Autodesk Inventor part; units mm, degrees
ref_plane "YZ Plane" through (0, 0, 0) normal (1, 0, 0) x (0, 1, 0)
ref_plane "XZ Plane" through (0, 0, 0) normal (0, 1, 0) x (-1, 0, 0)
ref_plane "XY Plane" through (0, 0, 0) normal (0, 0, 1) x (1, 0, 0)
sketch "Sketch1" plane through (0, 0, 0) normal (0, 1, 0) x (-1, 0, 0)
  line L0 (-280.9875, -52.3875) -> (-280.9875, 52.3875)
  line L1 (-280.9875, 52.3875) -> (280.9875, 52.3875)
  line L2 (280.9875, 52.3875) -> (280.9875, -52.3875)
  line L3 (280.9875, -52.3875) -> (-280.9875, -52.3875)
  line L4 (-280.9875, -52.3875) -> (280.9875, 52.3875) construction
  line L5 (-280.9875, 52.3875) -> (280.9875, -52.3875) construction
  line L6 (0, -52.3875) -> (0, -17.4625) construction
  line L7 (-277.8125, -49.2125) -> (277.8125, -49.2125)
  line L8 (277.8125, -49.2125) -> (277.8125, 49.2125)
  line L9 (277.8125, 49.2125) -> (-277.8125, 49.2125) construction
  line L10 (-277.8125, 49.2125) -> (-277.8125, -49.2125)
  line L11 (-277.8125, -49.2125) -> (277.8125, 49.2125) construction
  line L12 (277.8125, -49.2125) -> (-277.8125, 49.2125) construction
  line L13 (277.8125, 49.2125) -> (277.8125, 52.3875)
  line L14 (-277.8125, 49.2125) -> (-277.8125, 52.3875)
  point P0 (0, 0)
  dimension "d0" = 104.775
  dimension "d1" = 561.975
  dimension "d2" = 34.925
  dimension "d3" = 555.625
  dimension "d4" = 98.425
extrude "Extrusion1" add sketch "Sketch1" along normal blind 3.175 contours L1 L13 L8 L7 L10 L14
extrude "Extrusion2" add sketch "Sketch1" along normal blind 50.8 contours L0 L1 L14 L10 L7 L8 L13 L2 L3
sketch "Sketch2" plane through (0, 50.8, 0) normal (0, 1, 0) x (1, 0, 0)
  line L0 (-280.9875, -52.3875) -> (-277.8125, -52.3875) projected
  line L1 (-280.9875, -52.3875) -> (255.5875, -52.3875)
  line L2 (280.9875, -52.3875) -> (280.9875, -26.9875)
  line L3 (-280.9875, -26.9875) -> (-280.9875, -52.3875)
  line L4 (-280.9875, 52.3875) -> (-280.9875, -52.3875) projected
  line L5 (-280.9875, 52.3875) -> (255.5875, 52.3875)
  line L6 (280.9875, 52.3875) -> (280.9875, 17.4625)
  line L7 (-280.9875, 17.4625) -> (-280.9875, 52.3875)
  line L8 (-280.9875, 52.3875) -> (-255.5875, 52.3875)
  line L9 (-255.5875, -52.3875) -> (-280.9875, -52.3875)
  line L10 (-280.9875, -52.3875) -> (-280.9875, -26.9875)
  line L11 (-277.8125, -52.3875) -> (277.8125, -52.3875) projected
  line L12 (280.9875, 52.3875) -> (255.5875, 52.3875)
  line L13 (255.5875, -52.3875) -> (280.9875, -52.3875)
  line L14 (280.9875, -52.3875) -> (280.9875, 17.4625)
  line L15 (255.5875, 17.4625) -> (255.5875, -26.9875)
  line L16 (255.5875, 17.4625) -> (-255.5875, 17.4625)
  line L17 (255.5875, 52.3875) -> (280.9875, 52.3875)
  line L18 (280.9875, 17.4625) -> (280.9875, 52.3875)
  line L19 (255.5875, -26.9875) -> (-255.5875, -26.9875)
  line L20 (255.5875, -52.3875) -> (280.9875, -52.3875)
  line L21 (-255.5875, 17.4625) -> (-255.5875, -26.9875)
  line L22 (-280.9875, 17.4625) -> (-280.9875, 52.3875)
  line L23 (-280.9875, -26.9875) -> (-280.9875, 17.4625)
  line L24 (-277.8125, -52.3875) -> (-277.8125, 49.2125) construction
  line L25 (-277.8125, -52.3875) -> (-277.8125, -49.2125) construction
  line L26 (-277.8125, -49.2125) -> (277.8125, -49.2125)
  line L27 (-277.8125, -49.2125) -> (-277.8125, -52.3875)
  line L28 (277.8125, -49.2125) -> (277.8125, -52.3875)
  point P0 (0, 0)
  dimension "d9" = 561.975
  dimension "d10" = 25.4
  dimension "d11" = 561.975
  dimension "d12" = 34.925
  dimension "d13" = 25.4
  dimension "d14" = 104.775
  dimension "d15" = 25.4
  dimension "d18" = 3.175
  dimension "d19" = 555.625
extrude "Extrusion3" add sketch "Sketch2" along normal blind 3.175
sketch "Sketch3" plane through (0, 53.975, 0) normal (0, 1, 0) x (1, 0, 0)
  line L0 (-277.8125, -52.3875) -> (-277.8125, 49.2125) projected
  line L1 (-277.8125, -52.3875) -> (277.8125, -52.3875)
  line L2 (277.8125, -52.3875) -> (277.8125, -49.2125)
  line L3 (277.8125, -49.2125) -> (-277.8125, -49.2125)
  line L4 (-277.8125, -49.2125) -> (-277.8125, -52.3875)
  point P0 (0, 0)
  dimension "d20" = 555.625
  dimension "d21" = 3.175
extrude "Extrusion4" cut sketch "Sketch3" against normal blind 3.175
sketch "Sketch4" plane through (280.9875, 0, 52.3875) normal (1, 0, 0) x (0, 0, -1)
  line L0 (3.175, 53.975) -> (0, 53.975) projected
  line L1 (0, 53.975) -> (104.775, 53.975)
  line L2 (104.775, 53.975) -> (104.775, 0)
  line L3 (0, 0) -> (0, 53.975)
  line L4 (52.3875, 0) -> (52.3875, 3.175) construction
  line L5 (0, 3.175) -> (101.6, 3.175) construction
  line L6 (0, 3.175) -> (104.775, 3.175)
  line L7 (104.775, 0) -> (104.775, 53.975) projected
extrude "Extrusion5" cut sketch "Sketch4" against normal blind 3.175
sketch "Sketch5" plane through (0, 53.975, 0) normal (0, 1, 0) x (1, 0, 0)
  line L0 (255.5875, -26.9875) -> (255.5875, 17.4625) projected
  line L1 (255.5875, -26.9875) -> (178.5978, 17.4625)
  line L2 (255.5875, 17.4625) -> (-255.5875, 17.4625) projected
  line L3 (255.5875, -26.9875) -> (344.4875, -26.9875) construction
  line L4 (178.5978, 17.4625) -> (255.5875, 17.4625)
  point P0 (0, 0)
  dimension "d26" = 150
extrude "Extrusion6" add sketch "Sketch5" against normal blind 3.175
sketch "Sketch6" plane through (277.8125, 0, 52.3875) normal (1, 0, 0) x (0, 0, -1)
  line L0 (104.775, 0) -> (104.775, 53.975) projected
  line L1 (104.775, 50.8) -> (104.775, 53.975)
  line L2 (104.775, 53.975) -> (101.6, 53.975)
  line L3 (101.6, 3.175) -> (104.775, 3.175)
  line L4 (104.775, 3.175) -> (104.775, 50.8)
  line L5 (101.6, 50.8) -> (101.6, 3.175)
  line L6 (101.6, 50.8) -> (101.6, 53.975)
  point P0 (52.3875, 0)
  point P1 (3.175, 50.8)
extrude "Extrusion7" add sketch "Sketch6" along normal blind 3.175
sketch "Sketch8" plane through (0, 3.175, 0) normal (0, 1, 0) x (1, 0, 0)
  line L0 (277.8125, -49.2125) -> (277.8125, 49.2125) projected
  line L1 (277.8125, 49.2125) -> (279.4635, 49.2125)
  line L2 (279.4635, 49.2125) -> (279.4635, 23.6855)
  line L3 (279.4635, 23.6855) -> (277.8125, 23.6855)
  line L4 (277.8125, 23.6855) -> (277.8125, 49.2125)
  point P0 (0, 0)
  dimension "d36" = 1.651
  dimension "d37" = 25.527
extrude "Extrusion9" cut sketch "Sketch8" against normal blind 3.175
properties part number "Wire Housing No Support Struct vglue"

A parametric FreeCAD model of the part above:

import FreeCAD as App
import Part
import Sketcher
from FreeCAD import Vector
Q = App.Units.Quantity

doc = App.newDocument("Part")
body = doc.addObject("PartDesign::Body", "Body")

# Sketch on XZ plane
sketch1 = body.newObject("Sketcher::SketchObject", "Sketch")
sketch1.AttachmentSupport = (doc.getObject("XZ_Plane"), [""])
sketch1.MapMode = "FlatFace"
sketch1.addGeometry([
    Part.LineSegment(Vector(-278, 52, 0), Vector(278, 52, 0)),
    Part.LineSegment(Vector(278, 52, 0), Vector(278, -49, 0)),
    Part.LineSegment(Vector(278, -49, 0), Vector(-278, -49, 0)),
    Part.LineSegment(Vector(-278, -49, 0), Vector(-278, 52, 0)),
], False)
sketch1.addConstraint([
    Sketcher.Constraint("Coincident", 0, 2, 1, 1),
    Sketcher.Constraint("Coincident", 1, 2, 2, 1),
    Sketcher.Constraint("Coincident", 2, 2, 3, 1),
    Sketcher.Constraint("Coincident", 3, 2, 0, 1),
    Sketcher.Constraint("Horizontal", 0),
    Sketcher.Constraint("Vertical", 1),
    Sketcher.Constraint("Horizontal", 2),
    Sketcher.Constraint("Vertical", 3),
    Sketcher.Constraint("DistanceX", 0, 1, 0, 2, Q("21.875 in")),
    Sketcher.Constraint("DistanceY", 1, 2, 1, 1, Q("4 in")),
    Sketcher.Constraint("DistanceX", -1, 1, 0, 2, Q("10.9375 in")),
    Sketcher.Constraint("DistanceY", -1, 1, 0, 2, Q("2.0625 in")),
])
pad1 = body.newObject("PartDesign::Pad", "Pad")
pad1.Profile = sketch1
pad1.Length = Q("0.125 in")
pad1.Reversed = True

# Sketch on XZ plane
sketch2 = body.newObject("Sketcher::SketchObject", "Sketch001")
sketch2.AttachmentSupport = (doc.getObject("XZ_Plane"), [""])
sketch2.MapMode = "FlatFace"
sketch2.addGeometry([
    Part.LineSegment(Vector(281, 52.4, 0), Vector(281, -52.4, 0)),  # 0
    Part.LineSegment(Vector(281, -52.4, 0), Vector(-281, -52.4, 0)),  # 1
    Part.LineSegment(Vector(-281, -52.4, 0), Vector(-281, 52.4, 0)),  # 2
    Part.LineSegment(Vector(-281, 52.4, 0), Vector(-277.8, 52.4, 0)),  # 3
    Part.LineSegment(Vector(-277.8, 52.4, 0), Vector(-277.8, -49.2, 0)),  # 4
    Part.LineSegment(Vector(-277.8, -49.2, 0), Vector(277.8, -49.2, 0)),  # 5
    Part.LineSegment(Vector(277.8, -49.2, 0), Vector(277.8, 52.4, 0)),  # 6
    Part.LineSegment(Vector(277.8, 52.4, 0), Vector(281, 52.4, 0)),  # 7
], False)
sketch2.addConstraint([
    Sketcher.Constraint("Coincident", 0, 2, 1, 1),
    Sketcher.Constraint("Coincident", 1, 2, 2, 1),
    Sketcher.Constraint("Coincident", 2, 2, 3, 1),
    Sketcher.Constraint("Coincident", 3, 2, 4, 1),
    Sketcher.Constraint("Coincident", 4, 2, 5, 1),
    Sketcher.Constraint("Coincident", 5, 2, 6, 1),
    Sketcher.Constraint("Coincident", 6, 2, 7, 1),
    Sketcher.Constraint("Coincident", 7, 2, 0, 1),
    Sketcher.Constraint("Vertical", 0),
    Sketcher.Constraint("Horizontal", 1),
    Sketcher.Constraint("Vertical", 2),
    Sketcher.Constraint("Horizontal", 3),
    Sketcher.Constraint("Vertical", 4),
    Sketcher.Constraint("Horizontal", 5),
    Sketcher.Constraint("Vertical", 6),
    Sketcher.Constraint("Horizontal", 7),
    Sketcher.Constraint("Symmetric", 0, 2, 2, 2, -1, 1),
    Sketcher.Constraint("Symmetric", 3, 2, 6, 2, -2),
    Sketcher.Constraint("DistanceX", 1, 2, 1, 1, Q("22.125 in")),
    Sketcher.Constraint("DistanceX", 5, 1, 5, 2, Q("21.875 in")),
    Sketcher.Constraint("DistanceY", 0, 2, 0, 1, Q("4.125 in")),
    Sketcher.Constraint("DistanceY", 4, 2, 4, 1, Q("4 in")),
])
pad2 = body.newObject("PartDesign::Pad", "Pad001")
pad2.Profile = sketch2
pad2.Length = Q("2 in")
pad2.Reversed = True

# Sketch on XZ plane
sketch3 = body.newObject("Sketcher::SketchObject", "Sketch002")
sketch3.AttachmentSupport = (doc.getObject("XZ_Plane"), [""])
sketch3.MapMode = "FlatFace"
sketch3.AttachmentOffset = App.Placement(Vector(0, 0, -2 * 25.4), App.Rotation())
sketch3.addGeometry([
    Part.LineSegment(Vector(-281, 52, 0), Vector(281, 52, 0)),  # 0
    Part.LineSegment(Vector(281, 52, 0), Vector(281, -52, 0)),  # 1
    Part.LineSegment(Vector(281, -52, 0), Vector(-281, -52, 0)),  # 2
    Part.LineSegment(Vector(-281, -52, 0), Vector(-281, 52, 0)),  # 3
    Part.LineSegment(Vector(-256, -17, 0), Vector(256, -17, 0)),  # 4
    Part.LineSegment(Vector(256, -17, 0), Vector(256, 27, 0)),  # 5
    Part.LineSegment(Vector(256, 27, 0), Vector(-256, 27, 0)),  # 6
    Part.LineSegment(Vector(-256, 27, 0), Vector(-256, -17, 0)),  # 7
], False)
sketch3.addConstraint([
    Sketcher.Constraint("Coincident", 0, 2, 1, 1),
    Sketcher.Constraint("Coincident", 1, 2, 2, 1),
    Sketcher.Constraint("Coincident", 2, 2, 3, 1),
    Sketcher.Constraint("Coincident", 3, 2, 0, 1),
    Sketcher.Constraint("Coincident", 4, 2, 5, 1),
    Sketcher.Constraint("Coincident", 5, 2, 6, 1),
    Sketcher.Constraint("Coincident", 6, 2, 7, 1),
    Sketcher.Constraint("Coincident", 7, 2, 4, 1),
    Sketcher.Constraint("Horizontal", 0),
    Sketcher.Constraint("Vertical", 1),
    Sketcher.Constraint("Horizontal", 2),
    Sketcher.Constraint("Vertical", 3),
    Sketcher.Constraint("Horizontal", 4),
    Sketcher.Constraint("Vertical", 5),
    Sketcher.Constraint("Horizontal", 6),
    Sketcher.Constraint("Vertical", 7),
    Sketcher.Constraint("Symmetric", 0, 2, 2, 2, -1, 1),
    Sketcher.Constraint("DistanceX", 4, 2, 1, 2, Q("1 in")),
    Sketcher.Constraint("DistanceY", 5, 2, 0, 2, Q("1 in")),
    Sketcher.Constraint("DistanceX", 3, 2, 6, 2, Q("1 in")),
    Sketcher.Constraint("DistanceX", 0, 1, 0, 2, Q("22.125 in")),
    Sketcher.Constraint("DistanceY", 1, 2, 1, 1, Q("4.125 in")),
    Sketcher.Constraint("DistanceY", 1, 2, 4, 2, Q("1.375 in")),
])
pad3 = body.newObject("PartDesign::Pad", "Pad002")
pad3.Profile = sketch3
pad3.Length = Q("0.125 in")
pad3.Reversed = True

# Sketch on XZ plane
sketch4 = body.newObject("Sketcher::SketchObject", "Sketch003")
sketch4.AttachmentSupport = (doc.getObject("XZ_Plane"), [""])
sketch4.MapMode = "FlatFace"
sketch4.AttachmentOffset = App.Placement(Vector(0, 0, -2.125 * 25.4), App.Rotation())
sketch4.addGeometry([
    Part.LineSegment(Vector(-277.8, 49.2, 0), Vector(-277.8, 52.4, 0)),
    Part.LineSegment(Vector(-277.8, 52.4, 0), Vector(277.8, 52.4, 0)),
    Part.LineSegment(Vector(277.8, 52.4, 0), Vector(277.8, 49.2, 0)),
    Part.LineSegment(Vector(277.8, 49.2, 0), Vector(-277.8, 49.2, 0)),
], False)
sketch4.addConstraint([
    Sketcher.Constraint("Coincident", 0, 2, 1, 1),
    Sketcher.Constraint("Coincident", 1, 2, 2, 1),
    Sketcher.Constraint("Coincident", 2, 2, 3, 1),
    Sketcher.Constraint("Coincident", 3, 2, 0, 1),
    Sketcher.Constraint("Vertical", 0),
    Sketcher.Constraint("Horizontal", 1),
    Sketcher.Constraint("Vertical", 2),
    Sketcher.Constraint("Horizontal", 3),
    Sketcher.Constraint("DistanceX", 1, 1, 1, 2, Q("21.875 in")),
    Sketcher.Constraint("DistanceY", 0, 1, 0, 2, Q("0.125 in")),
    Sketcher.Constraint("DistanceX", 0, 2, -1, 1, Q("10.9375 in")),
    Sketcher.Constraint("DistanceY", -1, 1, 0, 2, Q("2.0625 in")),
])
pocket1 = body.newObject("PartDesign::Pocket", "Pocket")
pocket1.Profile = sketch4
pocket1.Length = Q("0.125 in")
pocket1.Reversed = True

# Sketch on YZ plane
sketch5 = body.newObject("Sketcher::SketchObject", "Sketch004")
sketch5.AttachmentSupport = (doc.getObject("YZ_Plane"), [""])
sketch5.MapMode = "FlatFace"
sketch5.AttachmentOffset = App.Placement(Vector(0, 0, 11.0625 * 25.4), App.Rotation())
sketch5.addGeometry([
    Part.LineSegment(Vector(54, -52, 0), Vector(54, 52, 0)),
    Part.LineSegment(Vector(54, 52, 0), Vector(3, 52, 0)),
    Part.LineSegment(Vector(3, 52, 0), Vector(3, -52, 0)),
    Part.LineSegment(Vector(3, -52, 0), Vector(54, -52, 0)),
], False)
sketch5.addConstraint([
    Sketcher.Constraint("Coincident", 0, 2, 1, 1),
    Sketcher.Constraint("Coincident", 1, 2, 2, 1),
    Sketcher.Constraint("Coincident", 2, 2, 3, 1),
    Sketcher.Constraint("Coincident", 3, 2, 0, 1),
    Sketcher.Constraint("Vertical", 0),
    Sketcher.Constraint("Horizontal", 1),
    Sketcher.Constraint("Vertical", 2),
    Sketcher.Constraint("Horizontal", 3),
    Sketcher.Constraint("DistanceX", 1, 2, 1, 1, Q("2 in")),
    Sketcher.Constraint("DistanceY", 0, 1, 0, 2, Q("4.125 in")),
    Sketcher.Constraint("DistanceX", -1, 1, 0, 2, Q("2.125 in")),
    Sketcher.Constraint("DistanceY", -1, 1, 0, 2, Q("2.0625 in")),
])
pocket2 = body.newObject("PartDesign::Pocket", "Pocket001")
pocket2.Profile = sketch5
pocket2.Length = Q("0.125 in")

# Sketch on XZ plane
sketch6 = body.newObject("Sketcher::SketchObject", "Sketch005")
sketch6.AttachmentSupport = (doc.getObject("XZ_Plane"), [""])
sketch6.MapMode = "FlatFace"
sketch6.AttachmentOffset = App.Placement(Vector(0, 0, -2.125 * 25.4), App.Rotation())
sketch6.addGeometry([
    Part.LineSegment(Vector(179, -17, 0), Vector(256, 27, 0)),
    Part.LineSegment(Vector(256, 27, 0), Vector(256, -17, 0)),
    Part.LineSegment(Vector(256, -17, 0), Vector(179, -17, 0)),
], False)
sketch6.addConstraint([
    Sketcher.Constraint("Coincident", 0, 2, 1, 1),
    Sketcher.Constraint("Coincident", 1, 2, 2, 1),
    Sketcher.Constraint("Coincident", 2, 2, 0, 1),
    Sketcher.Constraint("Vertical", 1),
    Sketcher.Constraint("Horizontal", 2),
    Sketcher.Constraint("Angle", 0, Q("30 deg")),
    Sketcher.Constraint("Distance", 0, Q("3.5 in")),
    Sketcher.Constraint("DistanceX", -1, 1, 0, 2, Q("10.0625 in")),
    Sketcher.Constraint("DistanceY", -1, 1, 0, 2, Q("1.0625 in")),
])
pad4 = body.newObject("PartDesign::Pad", "Pad003")
pad4.Profile = sketch6
pad4.Length = Q("0.125 in")

# Sketch on YZ plane
sketch7 = body.newObject("Sketcher::SketchObject", "Sketch006")
sketch7.AttachmentSupport = (doc.getObject("YZ_Plane"), [""])
sketch7.MapMode = "FlatFace"
sketch7.AttachmentOffset = App.Placement(Vector(0, 0, 10.9375 * 25.4), App.Rotation())
sketch7.addGeometry([
    Part.LineSegment(Vector(3.2, -49.2, 0), Vector(3.2, -52.4, 0)),
    Part.LineSegment(Vector(3.2, -52.4, 0), Vector(54, -52.4, 0)),
    Part.LineSegment(Vector(54, -52.4, 0), Vector(54, -49.2, 0)),
    Part.LineSegment(Vector(54, -49.2, 0), Vector(3.2, -49.2, 0)),
], False)
sketch7.addConstraint([
    Sketcher.Constraint("Coincident", 0, 2, 1, 1),
    Sketcher.Constraint("Coincident", 1, 2, 2, 1),
    Sketcher.Constraint("Coincident", 2, 2, 3, 1),
    Sketcher.Constraint("Coincident", 3, 2, 0, 1),
    Sketcher.Constraint("Vertical", 0),
    Sketcher.Constraint("Horizontal", 1),
    Sketcher.Constraint("Vertical", 2),
    Sketcher.Constraint("Horizontal", 3),
    Sketcher.Constraint("DistanceX", 1, 1, 1, 2, Q("2 in")),
    Sketcher.Constraint("DistanceY", 0, 2, 0, 1, Q("0.125 in")),
    Sketcher.Constraint("DistanceX", -1, 1, 0, 2, Q("0.125 in")),
    Sketcher.Constraint("DistanceY", 0, 2, -1, 1, Q("2.0625 in")),
])
pad5 = body.newObject("PartDesign::Pad", "Pad004")
pad5.Profile = sketch7
pad5.Length = Q("0.125 in")

# Sketch on XZ plane
sketch8 = body.newObject("Sketcher::SketchObject", "Sketch007")
sketch8.AttachmentSupport = (doc.getObject("XZ_Plane"), [""])
sketch8.MapMode = "FlatFace"
sketch8.AttachmentOffset = App.Placement(Vector(0, 0, -0.125 * 25.4), App.Rotation())
sketch8.addGeometry([
    Part.LineSegment(Vector(277.8, -49.2, 0), Vector(277.8, -23.7, 0)),
    Part.LineSegment(Vector(277.8, -23.7, 0), Vector(279.5, -23.7, 0)),
    Part.LineSegment(Vector(279.5, -23.7, 0), Vector(279.5, -49.2, 0)),
    Part.LineSegment(Vector(279.5, -49.2, 0), Vector(277.8, -49.2, 0)),
], False)
sketch8.addConstraint([
    Sketcher.Constraint("Coincident", 0, 2, 1, 1),
    Sketcher.Constraint("Coincident", 1, 2, 2, 1),
    Sketcher.Constraint("Coincident", 2, 2, 3, 1),
    Sketcher.Constraint("Coincident", 3, 2, 0, 1),
    Sketcher.Constraint("Vertical", 0),
    Sketcher.Constraint("Horizontal", 1),
    Sketcher.Constraint("Vertical", 2),
    Sketcher.Constraint("Horizontal", 3),
    Sketcher.Constraint("DistanceX", 1, 1, 1, 2, Q("0.065 in")),
    Sketcher.Constraint("DistanceY", 0, 1, 0, 2, Q("1.005 in")),
    Sketcher.Constraint("DistanceX", -1, 1, 0, 2, Q("10.9375 in")),
    Sketcher.Constraint("DistanceY", 2, 2, -1, 1, Q("1.9375 in")),
])
pocket3 = body.newObject("PartDesign::Pocket", "Pocket002")
pocket3.Profile = sketch8
pocket3.Length = Q("0.125 in")
pocket3.Reversed = True

doc.recompute()
